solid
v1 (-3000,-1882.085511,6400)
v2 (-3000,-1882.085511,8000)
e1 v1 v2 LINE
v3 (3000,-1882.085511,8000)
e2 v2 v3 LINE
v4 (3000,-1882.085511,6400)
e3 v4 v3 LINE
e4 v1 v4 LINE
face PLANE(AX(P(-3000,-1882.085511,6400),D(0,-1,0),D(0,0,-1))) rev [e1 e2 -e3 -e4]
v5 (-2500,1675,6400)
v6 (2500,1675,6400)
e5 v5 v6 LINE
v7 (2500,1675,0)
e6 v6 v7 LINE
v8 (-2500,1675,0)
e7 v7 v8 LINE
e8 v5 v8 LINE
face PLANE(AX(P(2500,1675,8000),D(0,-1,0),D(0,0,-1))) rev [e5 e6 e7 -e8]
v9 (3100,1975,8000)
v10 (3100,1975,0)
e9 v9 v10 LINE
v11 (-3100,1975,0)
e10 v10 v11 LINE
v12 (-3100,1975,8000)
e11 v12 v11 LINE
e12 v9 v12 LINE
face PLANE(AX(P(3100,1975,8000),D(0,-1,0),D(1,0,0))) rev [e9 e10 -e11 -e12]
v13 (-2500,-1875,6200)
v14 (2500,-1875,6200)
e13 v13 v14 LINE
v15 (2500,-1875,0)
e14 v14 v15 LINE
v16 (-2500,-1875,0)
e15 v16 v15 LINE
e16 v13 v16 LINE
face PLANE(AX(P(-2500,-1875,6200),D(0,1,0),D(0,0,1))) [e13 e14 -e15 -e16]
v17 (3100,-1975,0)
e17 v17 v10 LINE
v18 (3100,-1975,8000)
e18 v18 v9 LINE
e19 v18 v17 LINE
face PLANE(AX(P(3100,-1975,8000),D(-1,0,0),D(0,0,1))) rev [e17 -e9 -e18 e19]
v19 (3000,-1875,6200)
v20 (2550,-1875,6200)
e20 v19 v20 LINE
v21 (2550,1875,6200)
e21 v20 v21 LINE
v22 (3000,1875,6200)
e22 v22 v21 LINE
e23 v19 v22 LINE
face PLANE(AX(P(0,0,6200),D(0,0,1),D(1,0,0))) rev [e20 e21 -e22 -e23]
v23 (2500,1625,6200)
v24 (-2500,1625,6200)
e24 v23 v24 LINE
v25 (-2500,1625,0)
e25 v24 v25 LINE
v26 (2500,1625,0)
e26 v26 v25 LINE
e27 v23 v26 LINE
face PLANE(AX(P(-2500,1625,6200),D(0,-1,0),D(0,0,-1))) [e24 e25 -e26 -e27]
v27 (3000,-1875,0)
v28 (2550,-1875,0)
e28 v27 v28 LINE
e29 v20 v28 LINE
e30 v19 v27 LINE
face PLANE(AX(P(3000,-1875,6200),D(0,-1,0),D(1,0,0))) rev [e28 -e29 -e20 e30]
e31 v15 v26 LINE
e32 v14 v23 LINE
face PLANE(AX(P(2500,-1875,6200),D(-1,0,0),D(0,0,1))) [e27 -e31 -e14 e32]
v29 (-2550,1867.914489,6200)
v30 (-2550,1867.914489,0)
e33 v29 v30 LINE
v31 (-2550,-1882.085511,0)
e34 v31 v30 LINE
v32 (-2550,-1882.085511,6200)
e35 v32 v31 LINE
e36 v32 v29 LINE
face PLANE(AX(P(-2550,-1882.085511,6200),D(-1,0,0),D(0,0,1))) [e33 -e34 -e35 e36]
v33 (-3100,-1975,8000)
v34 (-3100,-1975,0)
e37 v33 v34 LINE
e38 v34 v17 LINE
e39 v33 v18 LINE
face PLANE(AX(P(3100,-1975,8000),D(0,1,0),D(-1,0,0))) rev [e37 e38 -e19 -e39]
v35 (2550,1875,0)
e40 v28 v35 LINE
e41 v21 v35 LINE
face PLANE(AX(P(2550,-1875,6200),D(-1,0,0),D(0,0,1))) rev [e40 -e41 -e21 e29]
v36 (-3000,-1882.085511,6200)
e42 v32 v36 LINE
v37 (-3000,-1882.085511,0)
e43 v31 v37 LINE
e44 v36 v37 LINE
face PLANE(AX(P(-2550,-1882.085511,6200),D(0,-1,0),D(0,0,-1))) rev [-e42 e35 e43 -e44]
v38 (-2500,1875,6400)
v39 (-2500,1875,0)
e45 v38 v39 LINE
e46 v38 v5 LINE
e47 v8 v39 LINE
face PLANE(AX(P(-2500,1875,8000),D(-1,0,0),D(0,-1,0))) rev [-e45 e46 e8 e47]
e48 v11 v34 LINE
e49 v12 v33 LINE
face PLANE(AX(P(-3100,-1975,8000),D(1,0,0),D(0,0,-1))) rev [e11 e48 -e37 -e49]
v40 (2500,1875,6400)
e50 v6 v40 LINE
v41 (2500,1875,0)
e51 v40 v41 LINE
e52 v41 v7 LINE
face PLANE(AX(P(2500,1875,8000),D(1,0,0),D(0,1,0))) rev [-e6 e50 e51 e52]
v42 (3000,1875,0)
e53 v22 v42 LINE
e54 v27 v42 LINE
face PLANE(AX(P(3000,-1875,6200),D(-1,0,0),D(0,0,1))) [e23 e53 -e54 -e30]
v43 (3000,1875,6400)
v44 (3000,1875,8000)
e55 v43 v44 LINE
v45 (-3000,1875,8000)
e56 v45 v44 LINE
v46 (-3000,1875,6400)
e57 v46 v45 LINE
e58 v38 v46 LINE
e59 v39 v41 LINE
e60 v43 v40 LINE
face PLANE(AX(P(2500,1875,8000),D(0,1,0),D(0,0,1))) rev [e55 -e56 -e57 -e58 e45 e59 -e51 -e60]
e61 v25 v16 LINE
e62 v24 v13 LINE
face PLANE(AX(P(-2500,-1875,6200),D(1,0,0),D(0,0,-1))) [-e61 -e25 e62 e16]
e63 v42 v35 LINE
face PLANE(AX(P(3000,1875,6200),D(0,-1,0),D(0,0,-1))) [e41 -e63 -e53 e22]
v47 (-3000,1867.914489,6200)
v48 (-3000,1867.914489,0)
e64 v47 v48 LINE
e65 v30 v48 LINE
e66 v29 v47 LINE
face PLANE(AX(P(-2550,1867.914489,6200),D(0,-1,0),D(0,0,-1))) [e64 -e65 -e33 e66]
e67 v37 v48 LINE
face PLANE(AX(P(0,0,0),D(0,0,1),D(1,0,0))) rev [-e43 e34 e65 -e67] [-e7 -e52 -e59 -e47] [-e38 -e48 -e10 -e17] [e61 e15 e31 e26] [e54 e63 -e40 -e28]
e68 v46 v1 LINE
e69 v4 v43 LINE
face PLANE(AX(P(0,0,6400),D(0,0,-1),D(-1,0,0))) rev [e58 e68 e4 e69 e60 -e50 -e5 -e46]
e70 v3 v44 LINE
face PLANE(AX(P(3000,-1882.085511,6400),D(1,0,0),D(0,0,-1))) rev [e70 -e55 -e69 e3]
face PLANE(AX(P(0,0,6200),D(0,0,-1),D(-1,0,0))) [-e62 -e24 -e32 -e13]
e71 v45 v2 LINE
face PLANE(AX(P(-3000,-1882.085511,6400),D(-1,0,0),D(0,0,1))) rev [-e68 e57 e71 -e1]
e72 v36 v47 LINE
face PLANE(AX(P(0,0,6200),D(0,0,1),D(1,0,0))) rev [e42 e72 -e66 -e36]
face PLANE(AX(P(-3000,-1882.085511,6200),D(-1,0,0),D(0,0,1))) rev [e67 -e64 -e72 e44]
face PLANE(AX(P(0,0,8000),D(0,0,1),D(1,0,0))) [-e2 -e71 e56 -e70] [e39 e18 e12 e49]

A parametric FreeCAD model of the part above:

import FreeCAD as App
import Part
import Sketcher


def add_polygon(sketch, points):
    """Adds a closed chain of lines whose ends are joined by coincident constraints."""
    first, n = sketch.GeometryCount, len(points)
    for a, b in zip(points, points[1:] + points[:1]):
        sketch.addGeometry(Part.LineSegment(App.Vector(*a, 0), App.Vector(*b, 0)), False)
    for i in range(n):
        sketch.addConstraint(Sketcher.Constraint("Coincident", first + i, 2, first + (i + 1) % n, 1))

doc = App.newDocument("Part")
body = doc.addObject("PartDesign::Body", "Body")

# Sketch on XY plane
sketch1 = body.newObject("Sketcher::SketchObject", "Sketch")
sketch1.AttachmentSupport = (doc.getObject("XY_Plane"), [""])
sketch1.MapMode = "FlatFace"
add_polygon(sketch1, [(-3100, 1975), (-3100, -1975), (3100, -1975), (3100, 1975)])  # lines 0-3
sketch1.addConstraint(Sketcher.Constraint("Vertical", 0))
sketch1.addConstraint(Sketcher.Constraint("Horizontal", 1))
sketch1.addConstraint(Sketcher.Constraint("Vertical", 2))
sketch1.addConstraint(Sketcher.Constraint("Horizontal", 3))
sketch1.addConstraint(Sketcher.Constraint("Symmetric", 0, 2, 2, 2, -1, 1))
sketch1.addConstraint(Sketcher.Constraint("DistanceX", 1, 1, 1, 2, 6200.0))
sketch1.addConstraint(Sketcher.Constraint("DistanceY", 0, 2, 0, 1, 3950.0))
pad1 = body.newObject("PartDesign::Pad", "Pad")
pad1.Profile = sketch1
pad1.Length = 8000

# Sketch on XY plane
sketch2 = body.newObject("Sketcher::SketchObject", "Sketch001")
sketch2.AttachmentSupport = (doc.getObject("XY_Plane"), [""])
sketch2.MapMode = "FlatFace"
add_polygon(sketch2, [(-2500, 1625), (-2500, -1875), (2500, -1875), (2500, 1625)])  # lines 0-3
sketch2.addConstraint(Sketcher.Constraint("Vertical", 0))
sketch2.addConstraint(Sketcher.Constraint("Horizontal", 1))
sketch2.addConstraint(Sketcher.Constraint("Vertical", 2))
sketch2.addConstraint(Sketcher.Constraint("Horizontal", 3))
sketch2.addConstraint(Sketcher.Constraint("DistanceX", 1, 1, 1, 2, 5000.0))
sketch2.addConstraint(Sketcher.Constraint("DistanceY", 0, 2, 0, 1, 3500.0))
sketch2.addConstraint(Sketcher.Constraint("DistanceX", 0, 2, -1, 1, 2500.0))
sketch2.addConstraint(Sketcher.Constraint("DistanceY", 0, 2, -1, 1, 1875.0))
pocket1 = body.newObject("PartDesign::Pocket", "Pocket")
pocket1.Profile = sketch2
pocket1.Length = 6200
pocket1.Reversed = True

# Sketch on XY plane
sketch3 = body.newObject("Sketcher::SketchObject", "Sketch002")
sketch3.AttachmentSupport = (doc.getObject("XY_Plane"), [""])
sketch3.MapMode = "FlatFace"
add_polygon(sketch3, [(2550, 1875), (2550, -1875), (3000, -1875), (3000, 1875)])  # lines 0-3
add_polygon(sketch3, [(-3000, 1868), (-3000, -1882), (-2550, -1882), (-2550, 1868)])  # lines 4-7
sketch3.addConstraint(Sketcher.Constraint("Vertical", 0))
sketch3.addConstraint(Sketcher.Constraint("Horizontal", 1))
sketch3.addConstraint(Sketcher.Constraint("Vertical", 2))
sketch3.addConstraint(Sketcher.Constraint("Horizontal", 3))
sketch3.addConstraint(Sketcher.Constraint("Vertical", 4))
sketch3.addConstraint(Sketcher.Constraint("Horizontal", 5))
sketch3.addConstraint(Sketcher.Constraint("Vertical", 6))
sketch3.addConstraint(Sketcher.Constraint("Horizontal", 7))
sketch3.addConstraint(Sketcher.Constraint("Equal", 3, 5))
sketch3.addConstraint(Sketcher.Constraint("Equal", 2, 4))
sketch3.addConstraint(Sketcher.Constraint("DistanceX", 1, 1, 1, 2, 450.0))
sketch3.addConstraint(Sketcher.Constraint("DistanceY", 0, 2, 0, 1, 3750.0))
sketch3.addConstraint(Sketcher.Constraint("DistanceX", -1, 1, 0, 2, 2550.0))
sketch3.addConstraint(Sketcher.Constraint("DistanceY", 0, 2, -1, 1, 1875.0))
sketch3.addConstraint(Sketcher.Constraint("DistanceX", 4, 2, -1, 1, 3000.0))
sketch3.addConstraint(Sketcher.Constraint("DistanceY", 4, 2, -1, 1, 1882.085511))
pocket2 = body.newObject("PartDesign::Pocket", "Pocket001")
pocket2.Profile = sketch3
pocket2.Length = 6200
pocket2.Reversed = True

# Sketch on XY plane
sketch4 = body.newObject("Sketcher::SketchObject", "Sketch003")
sketch4.AttachmentSupport = (doc.getObject("XY_Plane"), [""])
sketch4.MapMode = "FlatFace"
add_polygon(sketch4, [(2500, 1875), (2500, 1675), (-2500, 1675), (-2500, 1875)])  # lines 0-3
sketch4.addConstraint(Sketcher.Constraint("Vertical", 0))
sketch4.addConstraint(Sketcher.Constraint("Horizontal", 1))
sketch4.addConstraint(Sketcher.Constraint("Vertical", 2))
sketch4.addConstraint(Sketcher.Constraint("Horizontal", 3))
sketch4.addConstraint(Sketcher.Constraint("DistanceX", 1, 2, 1, 1, 5000.0))
sketch4.addConstraint(Sketcher.Constraint("DistanceY", 0, 2, 0, 1, 200.0))
sketch4.addConstraint(Sketcher.Constraint("DistanceX", -1, 1, 0, 2, 2500.0))
sketch4.addConstraint(Sketcher.Constraint("DistanceY", -1, 1, 0, 2, 1675.0))
pocket3 = body.newObject("PartDesign::Pocket", "Pocket002")
pocket3.Profile = sketch4
pocket3.Length = 8000
pocket3.Reversed = True

# Sketch on XY plane
sketch5 = body.newObject("Sketcher::SketchObject", "Sketch004")
sketch5.AttachmentSupport = (doc.getObject("XY_Plane"), [""])
sketch5.MapMode = "FlatFace"
sketch5.AttachmentOffset = App.Placement(App.Vector(0, 0, 8000), App.Rotation())
add_polygon(sketch5, [(-3000, 1875), (-3000, -1882), (3000, -1882), (3000, 1875)])  # lines 0-3
sketch5.addConstraint(Sketcher.Constraint("Vertical", 0))
sketch5.addConstraint(Sketcher.Constraint("Horizontal", 1))
sketch5.addConstraint(Sketcher.Constraint("Vertical", 2))
sketch5.addConstraint(Sketcher.Constraint("Horizontal", 3))
sketch5.addConstraint(Sketcher.Constraint("DistanceX", 1, 1, 1, 2, 6000.0))
sketch5.addConstraint(Sketcher.Constraint("DistanceX", 0, 2, -1, 1, 3000.0))
sketch5.addConstraint(Sketcher.Constraint("DistanceY", -1, 1, 2, 2, 1875.0))
sketch5.addConstraint(Sketcher.Constraint("DistanceY", 0, 2, 0, 1, 3757.085511))
pocket4 = body.newObject("PartDesign::Pocket", "Pocket003")
pocket4.Profile = sketch5
pocket4.Length = 1600

doc.recompute()
